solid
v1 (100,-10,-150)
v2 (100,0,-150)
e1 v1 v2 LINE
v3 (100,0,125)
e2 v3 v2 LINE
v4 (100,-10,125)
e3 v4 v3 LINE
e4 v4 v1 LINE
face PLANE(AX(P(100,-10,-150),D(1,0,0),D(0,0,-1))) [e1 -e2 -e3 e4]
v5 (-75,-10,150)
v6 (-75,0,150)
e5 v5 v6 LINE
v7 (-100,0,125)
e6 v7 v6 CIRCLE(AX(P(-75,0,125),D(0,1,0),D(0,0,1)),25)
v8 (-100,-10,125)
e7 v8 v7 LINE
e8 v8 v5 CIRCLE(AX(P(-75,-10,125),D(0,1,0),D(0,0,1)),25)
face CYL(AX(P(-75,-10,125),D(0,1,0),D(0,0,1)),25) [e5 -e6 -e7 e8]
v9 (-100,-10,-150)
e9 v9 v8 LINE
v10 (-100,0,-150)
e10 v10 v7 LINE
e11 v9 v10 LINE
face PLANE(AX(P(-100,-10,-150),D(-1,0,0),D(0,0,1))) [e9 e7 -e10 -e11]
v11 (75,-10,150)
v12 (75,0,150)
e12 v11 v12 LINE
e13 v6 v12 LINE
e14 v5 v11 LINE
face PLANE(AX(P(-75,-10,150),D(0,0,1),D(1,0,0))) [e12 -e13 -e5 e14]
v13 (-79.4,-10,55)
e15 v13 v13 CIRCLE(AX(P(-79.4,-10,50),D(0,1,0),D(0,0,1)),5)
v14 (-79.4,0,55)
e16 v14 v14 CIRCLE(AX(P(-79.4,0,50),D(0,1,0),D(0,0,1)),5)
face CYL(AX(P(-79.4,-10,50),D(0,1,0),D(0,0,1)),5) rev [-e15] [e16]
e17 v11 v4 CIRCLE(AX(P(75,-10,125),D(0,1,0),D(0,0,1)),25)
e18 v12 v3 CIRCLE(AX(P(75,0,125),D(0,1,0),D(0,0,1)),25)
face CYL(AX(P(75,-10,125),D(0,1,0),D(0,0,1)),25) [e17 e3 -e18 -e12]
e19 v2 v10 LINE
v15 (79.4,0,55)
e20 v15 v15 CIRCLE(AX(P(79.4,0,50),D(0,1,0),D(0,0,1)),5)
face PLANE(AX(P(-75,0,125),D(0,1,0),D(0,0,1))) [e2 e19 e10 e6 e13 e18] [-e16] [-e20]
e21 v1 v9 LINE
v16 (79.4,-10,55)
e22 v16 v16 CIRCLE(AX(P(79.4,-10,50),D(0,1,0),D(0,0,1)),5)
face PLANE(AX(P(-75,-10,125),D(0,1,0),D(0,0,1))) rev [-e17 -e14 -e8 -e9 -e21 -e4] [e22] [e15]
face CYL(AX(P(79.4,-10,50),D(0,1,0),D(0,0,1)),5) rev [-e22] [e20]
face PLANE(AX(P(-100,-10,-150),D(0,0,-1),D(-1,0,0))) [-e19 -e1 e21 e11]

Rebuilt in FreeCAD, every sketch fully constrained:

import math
import FreeCAD as App
import Part
import Sketcher
from FreeCAD import Vector
Q = App.Units.Quantity

doc = App.newDocument("Part")
body = doc.addObject("PartDesign::Body", "Body")

# Sketch on XZ plane
sketch1 = body.newObject("Sketcher::SketchObject", "Sketch")
sketch1.AttachmentSupport = (doc.getObject("XZ_Plane"), [""])
sketch1.MapMode = "FlatFace"
sketch1.addGeometry([
    Part.LineSegment(Vector(100, -150, 0), Vector(-100, -150, 0)),  # 0
    Part.LineSegment(Vector(-100, -150, 0), Vector(-100, 125, 0)),  # 1
    Part.ArcOfCircle(Part.Circle(Vector(-75, 125, 0), Vector(0, 0, 1), 25), math.radians(90), math.radians(180)),  # 2
    Part.LineSegment(Vector(-75, 150, 0), Vector(75, 150, 0)),  # 3
    Part.ArcOfCircle(Part.Circle(Vector(75, 125, 0), Vector(0, 0, 1), 25), math.radians(0), math.radians(90)),  # 4
    Part.LineSegment(Vector(100, 125, 0), Vector(100, -150, 0)),  # 5
], False)
sketch1.addConstraint([
    Sketcher.Constraint("Coincident", 0, 2, 1, 1),
    Sketcher.Constraint("Tangent", 1, 2, 2, 2),
    Sketcher.Constraint("Tangent", 2, 1, 3, 1),
    Sketcher.Constraint("Tangent", 3, 2, 4, 2),
    Sketcher.Constraint("Tangent", 4, 1, 5, 1),
    Sketcher.Constraint("Coincident", 5, 2, 0, 1),
    Sketcher.Constraint("Horizontal", 0),
    Sketcher.Constraint("Vertical", 1),
    Sketcher.Constraint("Horizontal", 3),
    Sketcher.Constraint("Vertical", 5),
    Sketcher.Constraint("Equal", 2, 4),
    Sketcher.Constraint("Radius", 2, Q("25 mm")),
    Sketcher.Constraint("DistanceX", 0, 2, 0, 1, Q("200 mm")),
    Sketcher.Constraint("DistanceY", 1, 1, 1, 2, Q("275 mm")),
    Sketcher.Constraint("DistanceX", 2, 3, -1, 1, Q("75 mm")),
    Sketcher.Constraint("DistanceY", -1, 1, 2, 3, Q("125 mm")),
])
pad1 = body.newObject("PartDesign::Pad", "Pad")
pad1.Profile = sketch1
pad1.Length = 10

# Sketch on XZ plane
sketch2 = body.newObject("Sketcher::SketchObject", "Sketch001")
sketch2.AttachmentSupport = (doc.getObject("XZ_Plane"), [""])
sketch2.MapMode = "FlatFace"
sketch2.addGeometry([
    Part.Circle(Vector(-79, 50, 0), Vector(0, 0, 1), 5),
    Part.Circle(Vector(79, 50, 0), Vector(0, 0, 1), 5),
], False)
sketch2.addConstraint([
    Sketcher.Constraint("Equal", 0, 1),
    Sketcher.Constraint("Symmetric", 0, 3, 1, 3, -2),
    Sketcher.Constraint("Diameter", 0, Q("10 mm")),
    Sketcher.Constraint("DistanceY", -1, 1, 0, 3, Q("50 mm")),
    Sketcher.Constraint("DistanceX", 0, 3, -1, 1, Q("79.4 mm")),
])
pocket1 = body.newObject("PartDesign::Pocket", "Pocket")
pocket1.Profile = sketch2
pocket1.Type = "ThroughAll"
pocket1.Reversed = True

doc.recompute()
